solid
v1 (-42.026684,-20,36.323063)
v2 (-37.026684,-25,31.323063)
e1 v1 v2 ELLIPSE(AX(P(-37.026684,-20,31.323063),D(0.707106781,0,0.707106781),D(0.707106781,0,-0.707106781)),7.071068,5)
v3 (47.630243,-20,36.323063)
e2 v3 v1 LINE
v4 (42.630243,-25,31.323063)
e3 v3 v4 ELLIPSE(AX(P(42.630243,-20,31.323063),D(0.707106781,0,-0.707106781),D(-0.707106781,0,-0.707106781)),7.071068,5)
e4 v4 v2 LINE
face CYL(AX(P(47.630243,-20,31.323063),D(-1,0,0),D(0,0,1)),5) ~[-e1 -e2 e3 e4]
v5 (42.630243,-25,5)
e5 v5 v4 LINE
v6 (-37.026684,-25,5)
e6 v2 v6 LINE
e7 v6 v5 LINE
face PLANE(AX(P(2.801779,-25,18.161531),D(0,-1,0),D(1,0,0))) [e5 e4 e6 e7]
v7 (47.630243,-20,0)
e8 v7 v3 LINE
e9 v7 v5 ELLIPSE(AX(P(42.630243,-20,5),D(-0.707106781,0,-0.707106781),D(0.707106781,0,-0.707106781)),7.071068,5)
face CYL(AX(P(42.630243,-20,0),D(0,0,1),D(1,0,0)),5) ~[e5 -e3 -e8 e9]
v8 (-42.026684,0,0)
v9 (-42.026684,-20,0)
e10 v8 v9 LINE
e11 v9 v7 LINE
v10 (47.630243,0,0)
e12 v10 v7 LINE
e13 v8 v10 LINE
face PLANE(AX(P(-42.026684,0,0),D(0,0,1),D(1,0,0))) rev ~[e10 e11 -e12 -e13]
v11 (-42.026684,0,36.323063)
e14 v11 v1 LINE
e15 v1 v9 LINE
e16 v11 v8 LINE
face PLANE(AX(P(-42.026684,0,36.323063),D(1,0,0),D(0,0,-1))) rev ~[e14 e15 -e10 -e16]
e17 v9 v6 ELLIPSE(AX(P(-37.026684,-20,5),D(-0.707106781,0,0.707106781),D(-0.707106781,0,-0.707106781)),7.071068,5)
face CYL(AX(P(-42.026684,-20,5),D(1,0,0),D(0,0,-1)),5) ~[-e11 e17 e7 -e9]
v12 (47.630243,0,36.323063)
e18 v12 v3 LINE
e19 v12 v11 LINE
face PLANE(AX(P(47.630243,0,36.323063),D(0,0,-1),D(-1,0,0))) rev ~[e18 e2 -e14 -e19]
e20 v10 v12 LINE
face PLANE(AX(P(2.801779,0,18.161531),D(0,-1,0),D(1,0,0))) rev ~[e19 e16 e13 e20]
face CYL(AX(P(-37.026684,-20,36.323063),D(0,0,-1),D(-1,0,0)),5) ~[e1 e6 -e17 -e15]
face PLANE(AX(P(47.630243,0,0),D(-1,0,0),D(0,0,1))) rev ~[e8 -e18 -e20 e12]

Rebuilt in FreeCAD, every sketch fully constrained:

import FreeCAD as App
import Part
import Sketcher


def edges_at(feature, points):
    """Names of the edges that pass closest to the given points."""
    edges = feature.Shape.Edges
    near = lambda p: min(range(len(edges)), key=lambda i: edges[i].distToShape(Part.Vertex(*p))[0])
    return sorted({f"Edge{near(p) + 1}" for p in points})

doc = App.newDocument("Part")
body = doc.addObject("PartDesign::Body", "Body")

sketch1 = body.newObject("Sketcher::SketchObject", "Sketch")
sketch1.AttachmentSupport = (doc.getObject("XZ_Plane"), [""])
sketch1.MapMode = "FlatFace"
sketch1.addGeometry([
    Part.LineSegment(App.Vector(-42.026684, 36.323063, 0), App.Vector(-42.026684, 0, 0)),
    Part.LineSegment(App.Vector(-42.026684, 0, 0), App.Vector(47.630243, 0, 0)),
    Part.LineSegment(App.Vector(47.630243, 0, 0), App.Vector(47.630243, 36.323063, 0)),
    Part.LineSegment(App.Vector(47.630243, 36.323063, 0), App.Vector(-42.026684, 36.323063, 0)),
], False)
sketch1.addConstraint([
    Sketcher.Constraint("Coincident", 0, 2, 1, 1),
    Sketcher.Constraint("Coincident", 1, 2, 2, 1),
    Sketcher.Constraint("Coincident", 2, 2, 3, 1),
    Sketcher.Constraint("Coincident", 3, 2, 0, 1),
    Sketcher.Constraint("Vertical", 0),
    Sketcher.Constraint("Horizontal", 1),
    Sketcher.Constraint("Vertical", 2),
    Sketcher.Constraint("Horizontal", 3),
    Sketcher.Constraint("PointOnObject", 0, 2, -1),
    Sketcher.Constraint("DistanceX", 1, 1, 1, 2, 89.656927),
    Sketcher.Constraint("DistanceY", 0, 2, 0, 1, 36.323063),
    Sketcher.Constraint("DistanceX", 0, 2, -1, 1, 42.026684),
])
pad1 = body.newObject("PartDesign::Pad", "Pad")
pad1.Profile = sketch1
pad1.Length = 25
doc.recompute()

fillet = body.newObject("PartDesign::Fillet", "Fillet")
fillet.Base = (pad1, edges_at(pad1, [
    (-42.027, -25, 18.162),
    (2.802, -25, 36.323),
    (2.802, -25, 0),
    (47.63, -25, 18.162),
]))
fillet.Radius = 5

doc.recompute()
